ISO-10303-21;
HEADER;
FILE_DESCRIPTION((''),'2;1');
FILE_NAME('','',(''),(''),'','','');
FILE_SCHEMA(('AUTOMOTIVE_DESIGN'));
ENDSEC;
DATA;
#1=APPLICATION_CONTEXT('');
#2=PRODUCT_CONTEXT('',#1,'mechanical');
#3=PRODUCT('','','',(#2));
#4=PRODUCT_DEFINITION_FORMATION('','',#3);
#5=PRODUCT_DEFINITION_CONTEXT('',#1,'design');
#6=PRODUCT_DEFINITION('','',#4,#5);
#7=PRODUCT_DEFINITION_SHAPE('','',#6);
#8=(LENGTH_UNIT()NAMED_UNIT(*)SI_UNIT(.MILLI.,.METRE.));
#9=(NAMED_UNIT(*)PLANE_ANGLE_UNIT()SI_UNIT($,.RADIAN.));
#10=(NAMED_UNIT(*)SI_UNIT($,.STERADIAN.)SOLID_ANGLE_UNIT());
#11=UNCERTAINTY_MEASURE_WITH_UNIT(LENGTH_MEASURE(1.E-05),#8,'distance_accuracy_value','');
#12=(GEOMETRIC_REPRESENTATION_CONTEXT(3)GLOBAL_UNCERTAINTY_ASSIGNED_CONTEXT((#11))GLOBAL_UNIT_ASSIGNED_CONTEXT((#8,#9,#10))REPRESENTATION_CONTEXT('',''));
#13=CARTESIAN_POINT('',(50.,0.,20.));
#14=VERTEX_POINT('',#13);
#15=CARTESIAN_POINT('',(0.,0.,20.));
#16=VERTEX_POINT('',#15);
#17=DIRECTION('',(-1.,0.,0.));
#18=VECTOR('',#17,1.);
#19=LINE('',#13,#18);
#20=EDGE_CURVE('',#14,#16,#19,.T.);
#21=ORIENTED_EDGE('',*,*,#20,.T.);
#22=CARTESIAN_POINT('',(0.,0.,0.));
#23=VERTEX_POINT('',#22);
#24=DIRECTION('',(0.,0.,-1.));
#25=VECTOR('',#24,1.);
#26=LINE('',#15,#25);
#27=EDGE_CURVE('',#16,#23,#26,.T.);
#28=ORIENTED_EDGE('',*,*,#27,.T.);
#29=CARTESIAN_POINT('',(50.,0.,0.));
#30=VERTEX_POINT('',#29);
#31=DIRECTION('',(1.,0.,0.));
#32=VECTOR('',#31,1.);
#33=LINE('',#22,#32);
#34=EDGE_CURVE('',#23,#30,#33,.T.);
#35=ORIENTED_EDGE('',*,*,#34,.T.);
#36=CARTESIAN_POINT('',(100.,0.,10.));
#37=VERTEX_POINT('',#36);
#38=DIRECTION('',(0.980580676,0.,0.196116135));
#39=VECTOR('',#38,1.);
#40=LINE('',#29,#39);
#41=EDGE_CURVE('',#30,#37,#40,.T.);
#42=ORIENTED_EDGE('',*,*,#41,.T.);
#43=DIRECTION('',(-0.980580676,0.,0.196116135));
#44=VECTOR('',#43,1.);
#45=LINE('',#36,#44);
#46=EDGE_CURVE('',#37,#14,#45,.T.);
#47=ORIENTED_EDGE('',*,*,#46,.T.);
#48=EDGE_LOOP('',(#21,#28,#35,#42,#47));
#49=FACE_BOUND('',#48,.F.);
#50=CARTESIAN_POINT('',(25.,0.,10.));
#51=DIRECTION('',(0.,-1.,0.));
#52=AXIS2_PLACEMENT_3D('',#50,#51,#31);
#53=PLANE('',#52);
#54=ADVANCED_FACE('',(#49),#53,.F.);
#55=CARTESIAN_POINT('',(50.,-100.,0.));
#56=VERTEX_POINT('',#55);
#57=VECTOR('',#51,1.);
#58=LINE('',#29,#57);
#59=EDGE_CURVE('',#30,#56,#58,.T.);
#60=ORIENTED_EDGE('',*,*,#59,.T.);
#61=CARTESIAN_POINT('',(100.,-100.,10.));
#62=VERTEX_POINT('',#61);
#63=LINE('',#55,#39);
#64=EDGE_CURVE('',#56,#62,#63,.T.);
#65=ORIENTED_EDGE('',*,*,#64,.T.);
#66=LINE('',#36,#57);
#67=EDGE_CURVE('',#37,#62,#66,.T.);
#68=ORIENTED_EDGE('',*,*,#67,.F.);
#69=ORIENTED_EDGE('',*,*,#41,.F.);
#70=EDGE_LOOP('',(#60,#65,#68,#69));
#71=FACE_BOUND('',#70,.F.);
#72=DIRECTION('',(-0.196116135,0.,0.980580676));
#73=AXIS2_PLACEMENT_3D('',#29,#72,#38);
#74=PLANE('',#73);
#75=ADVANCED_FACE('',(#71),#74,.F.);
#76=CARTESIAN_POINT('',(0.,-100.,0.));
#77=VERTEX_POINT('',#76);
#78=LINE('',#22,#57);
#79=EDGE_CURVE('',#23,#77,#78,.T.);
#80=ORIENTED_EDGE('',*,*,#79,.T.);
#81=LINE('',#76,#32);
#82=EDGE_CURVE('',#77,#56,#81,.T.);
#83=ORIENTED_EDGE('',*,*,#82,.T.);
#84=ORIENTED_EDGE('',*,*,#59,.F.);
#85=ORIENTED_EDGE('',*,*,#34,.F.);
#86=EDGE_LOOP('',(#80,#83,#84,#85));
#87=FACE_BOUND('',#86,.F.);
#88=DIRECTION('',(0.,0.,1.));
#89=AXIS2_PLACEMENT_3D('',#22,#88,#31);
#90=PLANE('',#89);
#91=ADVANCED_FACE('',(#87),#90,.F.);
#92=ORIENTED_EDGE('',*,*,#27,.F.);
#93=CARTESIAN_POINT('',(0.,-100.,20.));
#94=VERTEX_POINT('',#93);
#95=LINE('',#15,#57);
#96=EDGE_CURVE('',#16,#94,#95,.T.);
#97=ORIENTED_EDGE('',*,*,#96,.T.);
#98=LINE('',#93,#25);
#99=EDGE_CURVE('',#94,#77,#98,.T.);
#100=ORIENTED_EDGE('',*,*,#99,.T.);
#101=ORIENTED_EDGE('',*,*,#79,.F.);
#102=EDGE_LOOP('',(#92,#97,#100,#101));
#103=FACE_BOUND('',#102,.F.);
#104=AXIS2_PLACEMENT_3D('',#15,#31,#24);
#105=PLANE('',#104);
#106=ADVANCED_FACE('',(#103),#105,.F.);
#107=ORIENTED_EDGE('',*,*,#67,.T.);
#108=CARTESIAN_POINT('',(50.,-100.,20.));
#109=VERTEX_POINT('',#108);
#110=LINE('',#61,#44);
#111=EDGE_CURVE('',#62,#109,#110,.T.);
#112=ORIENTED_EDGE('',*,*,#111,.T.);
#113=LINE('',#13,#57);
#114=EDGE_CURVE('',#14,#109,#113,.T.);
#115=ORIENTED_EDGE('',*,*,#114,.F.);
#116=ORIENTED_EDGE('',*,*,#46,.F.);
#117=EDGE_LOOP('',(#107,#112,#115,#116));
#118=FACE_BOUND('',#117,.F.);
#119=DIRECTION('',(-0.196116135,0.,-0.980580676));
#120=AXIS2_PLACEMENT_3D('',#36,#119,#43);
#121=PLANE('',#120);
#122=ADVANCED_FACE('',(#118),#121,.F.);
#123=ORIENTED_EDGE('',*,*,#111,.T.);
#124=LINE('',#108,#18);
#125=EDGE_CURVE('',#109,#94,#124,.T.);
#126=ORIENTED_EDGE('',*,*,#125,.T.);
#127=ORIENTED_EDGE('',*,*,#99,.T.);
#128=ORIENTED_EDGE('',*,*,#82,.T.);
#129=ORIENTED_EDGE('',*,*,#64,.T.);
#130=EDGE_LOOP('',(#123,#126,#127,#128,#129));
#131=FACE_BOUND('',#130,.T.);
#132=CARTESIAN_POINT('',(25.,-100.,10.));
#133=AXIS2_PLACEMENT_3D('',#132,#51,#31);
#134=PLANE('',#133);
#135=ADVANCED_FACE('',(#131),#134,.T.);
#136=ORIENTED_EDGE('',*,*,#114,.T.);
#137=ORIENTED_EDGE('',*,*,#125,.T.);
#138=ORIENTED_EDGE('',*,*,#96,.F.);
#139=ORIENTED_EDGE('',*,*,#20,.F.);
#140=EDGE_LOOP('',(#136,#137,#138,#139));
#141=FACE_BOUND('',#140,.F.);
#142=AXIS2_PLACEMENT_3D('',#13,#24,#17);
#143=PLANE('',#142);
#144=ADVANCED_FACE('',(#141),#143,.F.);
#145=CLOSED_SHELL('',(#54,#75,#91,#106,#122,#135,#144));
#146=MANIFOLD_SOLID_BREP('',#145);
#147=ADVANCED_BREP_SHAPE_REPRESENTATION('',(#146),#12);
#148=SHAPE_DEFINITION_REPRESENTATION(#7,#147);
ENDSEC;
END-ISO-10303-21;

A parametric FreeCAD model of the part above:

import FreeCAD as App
import Part
import Sketcher

V = App.Vector


def add_polygon(sketch, points):
    """Adds a closed chain of lines whose ends are joined by coincident constraints."""
    first, n = sketch.GeometryCount, len(points)
    for a, b in zip(points, points[1:] + points[:1]):
        sketch.addGeometry(Part.LineSegment(App.Vector(*a, 0), App.Vector(*b, 0)), False)
    for i in range(n):
        sketch.addConstraint(Sketcher.Constraint("Coincident", first + i, 2, first + (i + 1) % n, 1))

doc = App.newDocument("Part")
body = doc.addObject("PartDesign::Body", "Body")

sketch1 = body.newObject("Sketcher::SketchObject", "Sketch")
sketch1.AttachmentSupport = (doc.getObject("XZ_Plane"), [""])
sketch1.MapMode = "FlatFace"
add_polygon(sketch1, [(0, 20), (0, 0), (50, 0), (100, 10), (50, 20)])
sketch1.addConstraint(Sketcher.Constraint("Vertical", 0))
sketch1.addConstraint(Sketcher.Constraint("Horizontal", 1))
sketch1.addConstraint(Sketcher.Constraint("Horizontal", 4))
sketch1.addConstraint(Sketcher.Constraint("Coincident", 0, 2, -1, 1))
sketch1.addConstraint(Sketcher.Constraint("Vertical", 1, 2, 3, 2))
sketch1.addConstraint(Sketcher.Constraint("Equal", 2, 3))
sketch1.addConstraint(Sketcher.Constraint("DistanceX", 1, 1, 1, 2, 50.0))
sketch1.addConstraint(Sketcher.Constraint("DistanceY", 0, 2, 0, 1, 20.0))
sketch1.addConstraint(Sketcher.Constraint("DistanceX", -1, 1, 2, 2, 100.0))
pad1 = body.newObject("PartDesign::Pad", "Pad")
pad1.Profile = sketch1
pad1.Length = 100

doc.recompute()
